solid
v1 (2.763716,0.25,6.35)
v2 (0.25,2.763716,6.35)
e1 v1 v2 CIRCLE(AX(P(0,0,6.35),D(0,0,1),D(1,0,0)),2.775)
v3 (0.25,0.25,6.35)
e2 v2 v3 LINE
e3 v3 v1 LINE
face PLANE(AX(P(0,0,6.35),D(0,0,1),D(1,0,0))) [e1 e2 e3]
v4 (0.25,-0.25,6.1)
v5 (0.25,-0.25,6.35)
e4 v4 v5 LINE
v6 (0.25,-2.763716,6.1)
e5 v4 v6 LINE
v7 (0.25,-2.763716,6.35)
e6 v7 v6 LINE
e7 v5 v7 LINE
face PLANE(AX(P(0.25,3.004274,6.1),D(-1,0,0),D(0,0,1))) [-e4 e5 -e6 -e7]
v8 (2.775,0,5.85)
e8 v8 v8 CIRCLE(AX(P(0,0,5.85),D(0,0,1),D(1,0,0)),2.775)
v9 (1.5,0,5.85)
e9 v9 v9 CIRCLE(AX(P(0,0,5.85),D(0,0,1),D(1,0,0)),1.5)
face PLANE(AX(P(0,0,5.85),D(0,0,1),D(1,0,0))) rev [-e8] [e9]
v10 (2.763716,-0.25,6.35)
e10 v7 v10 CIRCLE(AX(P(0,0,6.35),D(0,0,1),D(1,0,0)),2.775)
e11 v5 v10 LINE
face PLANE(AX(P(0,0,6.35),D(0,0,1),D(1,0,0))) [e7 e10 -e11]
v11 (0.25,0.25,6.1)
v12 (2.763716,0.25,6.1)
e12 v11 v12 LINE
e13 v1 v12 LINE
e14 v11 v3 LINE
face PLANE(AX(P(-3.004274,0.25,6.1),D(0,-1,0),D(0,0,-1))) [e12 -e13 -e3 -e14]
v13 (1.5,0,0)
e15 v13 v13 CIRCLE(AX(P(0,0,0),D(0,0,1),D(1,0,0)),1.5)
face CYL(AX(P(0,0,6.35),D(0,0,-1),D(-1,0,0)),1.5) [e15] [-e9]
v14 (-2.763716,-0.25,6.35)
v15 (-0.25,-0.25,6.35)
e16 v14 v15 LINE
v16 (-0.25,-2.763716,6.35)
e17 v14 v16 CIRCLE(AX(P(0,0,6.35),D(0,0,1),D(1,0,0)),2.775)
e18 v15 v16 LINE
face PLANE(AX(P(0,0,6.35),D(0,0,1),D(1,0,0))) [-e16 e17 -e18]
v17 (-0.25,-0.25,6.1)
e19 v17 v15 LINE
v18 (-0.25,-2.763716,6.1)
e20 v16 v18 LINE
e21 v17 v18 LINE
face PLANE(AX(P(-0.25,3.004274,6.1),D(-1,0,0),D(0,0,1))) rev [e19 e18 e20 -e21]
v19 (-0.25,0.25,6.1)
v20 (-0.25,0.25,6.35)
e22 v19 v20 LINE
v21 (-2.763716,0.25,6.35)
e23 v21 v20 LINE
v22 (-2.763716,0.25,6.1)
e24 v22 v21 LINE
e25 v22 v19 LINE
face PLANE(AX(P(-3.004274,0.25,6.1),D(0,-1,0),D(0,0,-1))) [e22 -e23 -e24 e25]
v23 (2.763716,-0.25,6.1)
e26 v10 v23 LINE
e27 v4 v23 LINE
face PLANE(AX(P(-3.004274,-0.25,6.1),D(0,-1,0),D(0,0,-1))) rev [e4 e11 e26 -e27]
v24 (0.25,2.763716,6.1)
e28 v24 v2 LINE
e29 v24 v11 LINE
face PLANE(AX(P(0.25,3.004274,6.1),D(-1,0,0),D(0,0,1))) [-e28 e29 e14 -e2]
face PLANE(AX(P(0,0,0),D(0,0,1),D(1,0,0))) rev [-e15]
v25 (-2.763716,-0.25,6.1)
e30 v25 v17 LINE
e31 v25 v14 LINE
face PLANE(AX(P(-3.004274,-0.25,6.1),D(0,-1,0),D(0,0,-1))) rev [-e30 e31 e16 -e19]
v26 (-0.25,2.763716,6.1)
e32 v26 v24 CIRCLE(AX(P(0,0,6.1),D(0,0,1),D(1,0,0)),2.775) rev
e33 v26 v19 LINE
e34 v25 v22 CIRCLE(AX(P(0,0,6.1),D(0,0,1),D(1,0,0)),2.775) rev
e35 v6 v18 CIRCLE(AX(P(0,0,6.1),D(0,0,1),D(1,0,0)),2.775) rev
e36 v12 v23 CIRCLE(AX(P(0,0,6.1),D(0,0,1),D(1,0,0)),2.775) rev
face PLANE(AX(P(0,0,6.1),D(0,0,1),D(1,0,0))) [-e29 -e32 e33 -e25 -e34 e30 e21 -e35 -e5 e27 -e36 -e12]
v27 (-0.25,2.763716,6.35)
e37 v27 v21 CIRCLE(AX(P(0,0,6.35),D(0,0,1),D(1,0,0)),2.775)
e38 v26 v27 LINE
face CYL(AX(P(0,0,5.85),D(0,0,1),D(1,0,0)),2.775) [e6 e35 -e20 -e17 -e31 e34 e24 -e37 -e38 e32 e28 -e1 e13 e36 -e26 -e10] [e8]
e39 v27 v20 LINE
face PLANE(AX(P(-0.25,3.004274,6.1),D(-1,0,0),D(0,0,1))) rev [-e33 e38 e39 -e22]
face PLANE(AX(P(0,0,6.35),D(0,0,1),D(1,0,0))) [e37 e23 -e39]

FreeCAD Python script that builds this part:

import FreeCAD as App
import Part
import Sketcher

V = App.Vector
Q = App.Units.Quantity


def add_polygon(sketch, points):
    """Adds a closed chain of lines whose ends are joined by coincident constraints."""
    first, n = sketch.GeometryCount, len(points)
    for a, b in zip(points, points[1:] + points[:1]):
        sketch.addGeometry(Part.LineSegment(App.Vector(*a, 0), App.Vector(*b, 0)), False)
    for i in range(n):
        sketch.addConstraint(Sketcher.Constraint("Coincident", first + i, 2, first + (i + 1) % n, 1))

doc = App.newDocument("Part")
body = doc.addObject("PartDesign::Body", "Body")

sketch1 = doc.addObject("Sketcher::SketchObject", "Sketch")
body.addObject(sketch1)
sketch1.AttachmentSupport = (doc.XY_Plane, [""])
sketch1.MapMode = "FlatFace"
sketch1.addGeometry(Part.Circle(V(0, 0, 0), V(0, 0, 1), 1.5), False)
sketch1.addConstraint([
    Sketcher.Constraint("Coincident", 0, 3, -1, 1),
    Sketcher.Constraint("Diameter", 0, Q("3 mm")),
])
pad1 = doc.addObject("PartDesign::Pad", "Pad")
body.addObject(pad1)
pad1.Profile = sketch1
pad1.Length = 6.35

sketch2 = doc.addObject("Sketcher::SketchObject", "Sketch001")
body.addObject(sketch2)
sketch2.AttachmentSupport = (doc.XY_Plane, [""])
sketch2.MapMode = "FlatFace"
sketch2.AttachmentOffset = App.Placement(V(0, 0, 6.35), App.Rotation())
sketch2.addGeometry(Part.Circle(V(0, 0, 0), V(0, 0, 1), 2.8), False)
sketch2.addConstraint([
    Sketcher.Constraint("Coincident", 0, 3, -1, 1),
    Sketcher.Constraint("Diameter", 0, Q("5.55 mm")),
])
pad2 = doc.addObject("PartDesign::Pad", "Pad001")
body.addObject(pad2)
pad2.Profile = sketch2
pad2.Length = 0.5
pad2.Reversed = True

sketch3 = doc.addObject("Sketcher::SketchObject", "Sketch002")
body.addObject(sketch3)
sketch3.AttachmentSupport = (doc.XY_Plane, [""])
sketch3.MapMode = "FlatFace"
sketch3.AttachmentOffset = App.Placement(V(0, 0, 6.35), App.Rotation())
add_polygon(sketch3, [(-0.2, -0.2), (-0.2, -3), (0.2, -3), (0.2, -0.2), (3, -0.2), (3, 0.2), (0.2, 0.2), (0.2, 3), (-0.2, 3), (-0.2, 0.2), (-3, 0.2), (-3, -0.2)])
sketch3.addConstraint([
    Sketcher.Constraint("Vertical", 0),
    Sketcher.Constraint("Horizontal", 1),
    Sketcher.Constraint("Vertical", 2),
    Sketcher.Constraint("Horizontal", 3),
    Sketcher.Constraint("Vertical", 4),
    Sketcher.Constraint("Horizontal", 5),
    Sketcher.Constraint("Vertical", 6),
    Sketcher.Constraint("Horizontal", 7),
    Sketcher.Constraint("Vertical", 8),
    Sketcher.Constraint("Horizontal", 9),
    Sketcher.Constraint("Vertical", 10),
    Sketcher.Constraint("Horizontal", 11),
    Sketcher.Constraint("Symmetric", 0, 2, 6, 2, -1, 1),
    Sketcher.Constraint("Symmetric", 2, 2, 8, 2, -1, 1),
    Sketcher.Constraint("Symmetric", 4, 2, 10, 2, -1, 1),
    Sketcher.Constraint("Symmetric", 5, 2, 8, 2, -2),
    Sketcher.Constraint("Equal", 11, 0),
    Sketcher.Constraint("Equal", 7, 4),
    Sketcher.Constraint("DistanceX", 1, 1, 1, 2, Q("0.5 mm")),
    Sketcher.Constraint("DistanceX", 3, 1, 3, 2, Q("2.754274 mm")),
])
pocket1 = doc.addObject("PartDesign::Pocket", "Pocket")
body.addObject(pocket1)
pocket1.Profile = sketch3
pocket1.Length = 0.25

doc.recompute()
